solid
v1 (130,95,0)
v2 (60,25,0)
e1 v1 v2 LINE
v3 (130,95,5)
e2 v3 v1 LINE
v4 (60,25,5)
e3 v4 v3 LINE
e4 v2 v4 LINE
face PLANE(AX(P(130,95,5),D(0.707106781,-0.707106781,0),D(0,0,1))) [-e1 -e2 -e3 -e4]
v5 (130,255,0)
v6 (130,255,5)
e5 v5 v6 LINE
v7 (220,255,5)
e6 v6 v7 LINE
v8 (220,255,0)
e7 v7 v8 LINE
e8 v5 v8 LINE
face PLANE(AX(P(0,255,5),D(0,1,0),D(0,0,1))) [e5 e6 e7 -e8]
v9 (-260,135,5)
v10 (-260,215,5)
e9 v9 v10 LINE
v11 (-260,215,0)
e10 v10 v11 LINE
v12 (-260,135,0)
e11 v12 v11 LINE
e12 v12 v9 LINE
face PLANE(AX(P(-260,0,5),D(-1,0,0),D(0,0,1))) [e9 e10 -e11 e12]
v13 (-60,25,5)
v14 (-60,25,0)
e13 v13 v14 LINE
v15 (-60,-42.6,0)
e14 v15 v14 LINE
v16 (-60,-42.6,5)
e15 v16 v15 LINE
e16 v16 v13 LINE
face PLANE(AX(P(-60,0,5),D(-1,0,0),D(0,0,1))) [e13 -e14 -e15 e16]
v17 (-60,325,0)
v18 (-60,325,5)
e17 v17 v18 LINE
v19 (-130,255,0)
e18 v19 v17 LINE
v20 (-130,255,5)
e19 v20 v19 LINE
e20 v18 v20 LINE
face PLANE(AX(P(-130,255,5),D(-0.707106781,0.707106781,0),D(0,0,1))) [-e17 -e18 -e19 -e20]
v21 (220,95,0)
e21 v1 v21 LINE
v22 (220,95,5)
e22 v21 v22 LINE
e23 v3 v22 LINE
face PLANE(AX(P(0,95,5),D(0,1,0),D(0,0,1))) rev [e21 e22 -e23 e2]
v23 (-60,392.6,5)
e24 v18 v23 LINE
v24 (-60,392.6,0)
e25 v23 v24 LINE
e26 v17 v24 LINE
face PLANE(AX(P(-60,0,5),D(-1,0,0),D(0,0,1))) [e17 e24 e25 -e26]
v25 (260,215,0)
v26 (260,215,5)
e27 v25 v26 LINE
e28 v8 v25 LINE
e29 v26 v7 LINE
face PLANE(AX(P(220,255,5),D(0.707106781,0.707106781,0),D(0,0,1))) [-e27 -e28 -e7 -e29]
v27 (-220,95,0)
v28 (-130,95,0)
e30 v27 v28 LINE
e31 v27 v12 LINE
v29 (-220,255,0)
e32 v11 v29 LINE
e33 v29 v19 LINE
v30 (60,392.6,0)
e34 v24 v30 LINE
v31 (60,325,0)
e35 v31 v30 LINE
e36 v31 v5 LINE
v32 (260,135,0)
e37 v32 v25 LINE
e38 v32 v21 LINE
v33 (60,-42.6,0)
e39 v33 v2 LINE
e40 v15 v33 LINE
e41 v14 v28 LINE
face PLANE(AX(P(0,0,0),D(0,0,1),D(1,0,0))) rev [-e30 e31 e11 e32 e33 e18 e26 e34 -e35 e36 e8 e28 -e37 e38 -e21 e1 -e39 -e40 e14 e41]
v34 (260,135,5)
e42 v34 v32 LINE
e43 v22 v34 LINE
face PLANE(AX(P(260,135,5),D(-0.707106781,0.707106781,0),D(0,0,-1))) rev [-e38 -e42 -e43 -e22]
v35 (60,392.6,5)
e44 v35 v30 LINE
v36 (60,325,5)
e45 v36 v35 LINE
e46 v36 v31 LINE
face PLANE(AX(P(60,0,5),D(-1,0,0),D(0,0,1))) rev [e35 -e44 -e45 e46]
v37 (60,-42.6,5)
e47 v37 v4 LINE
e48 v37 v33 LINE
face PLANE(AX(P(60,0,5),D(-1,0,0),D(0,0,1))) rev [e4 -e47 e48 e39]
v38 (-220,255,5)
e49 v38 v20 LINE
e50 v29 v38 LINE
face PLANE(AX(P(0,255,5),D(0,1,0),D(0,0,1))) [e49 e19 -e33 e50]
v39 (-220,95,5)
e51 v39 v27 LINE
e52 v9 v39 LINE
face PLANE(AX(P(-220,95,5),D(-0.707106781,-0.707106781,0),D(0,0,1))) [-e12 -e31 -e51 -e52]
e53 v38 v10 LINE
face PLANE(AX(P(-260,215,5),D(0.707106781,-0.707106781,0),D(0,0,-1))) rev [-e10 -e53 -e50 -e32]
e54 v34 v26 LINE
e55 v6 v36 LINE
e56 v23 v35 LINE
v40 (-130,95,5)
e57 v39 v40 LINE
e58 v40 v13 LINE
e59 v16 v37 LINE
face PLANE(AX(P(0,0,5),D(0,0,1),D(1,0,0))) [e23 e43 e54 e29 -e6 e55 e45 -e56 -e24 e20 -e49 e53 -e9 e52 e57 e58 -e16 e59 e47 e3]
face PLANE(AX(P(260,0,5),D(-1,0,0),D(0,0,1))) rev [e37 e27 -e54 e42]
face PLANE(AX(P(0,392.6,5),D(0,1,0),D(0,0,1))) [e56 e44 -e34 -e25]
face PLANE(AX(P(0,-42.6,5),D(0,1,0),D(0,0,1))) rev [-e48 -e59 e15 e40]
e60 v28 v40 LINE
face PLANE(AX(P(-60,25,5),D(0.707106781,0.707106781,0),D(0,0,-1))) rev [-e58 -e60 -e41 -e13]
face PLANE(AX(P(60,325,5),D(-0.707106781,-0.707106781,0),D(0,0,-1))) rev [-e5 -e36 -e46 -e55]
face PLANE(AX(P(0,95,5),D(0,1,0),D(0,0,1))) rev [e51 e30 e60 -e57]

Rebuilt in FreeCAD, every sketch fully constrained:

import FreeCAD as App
import Part
import Sketcher
Q = App.Units.Quantity


def edges_at(feature, points):
    """Names of the edges that pass closest to the given points."""
    edges = feature.Shape.Edges
    near = lambda p: min(range(len(edges)), key=lambda i: edges[i].distToShape(Part.Vertex(*p))[0])
    return sorted({f"Edge{near(p) + 1}" for p in points})

doc = App.newDocument("Part")
body = doc.addObject("PartDesign::Body", "Body")

# Sketch on XY plane
sketch1 = body.newObject("Sketcher::SketchObject", "Sketch")
sketch1.AttachmentSupport = (doc.getObject("XY_Plane"), [""])
sketch1.MapMode = "FlatFace"
sketch1.addGeometry([
    Part.LineSegment(App.Vector(-60, 392.6, 0), App.Vector(-60, 255, 0)),  # 0
    Part.LineSegment(App.Vector(-60, 255, 0), App.Vector(-260, 255, 0)),  # 1
    Part.LineSegment(App.Vector(-260, 255, 0), App.Vector(-260, 95, 0)),  # 2
    Part.LineSegment(App.Vector(-260, 95, 0), App.Vector(-60, 95, 0)),  # 3
    Part.LineSegment(App.Vector(-60, 95, 0), App.Vector(-60, -42.6, 0)),  # 4
    Part.LineSegment(App.Vector(-60, -42.6, 0), App.Vector(60, -42.6, 0)),  # 5
    Part.LineSegment(App.Vector(60, -42.6, 0), App.Vector(60, 95, 0)),  # 6
    Part.LineSegment(App.Vector(60, 95, 0), App.Vector(260, 95, 0)),  # 7
    Part.LineSegment(App.Vector(260, 95, 0), App.Vector(260, 255, 0)),  # 8
    Part.LineSegment(App.Vector(260, 255, 0), App.Vector(60, 255, 0)),  # 9
    Part.LineSegment(App.Vector(60, 255, 0), App.Vector(60, 392.6, 0)),  # 10
    Part.LineSegment(App.Vector(60, 392.6, 0), App.Vector(-60, 392.6, 0)),  # 11
], False)
sketch1.addConstraint([
    Sketcher.Constraint("Coincident", 0, 2, 1, 1),
    Sketcher.Constraint("Coincident", 1, 2, 2, 1),
    Sketcher.Constraint("Coincident", 2, 2, 3, 1),
    Sketcher.Constraint("Coincident", 3, 2, 4, 1),
    Sketcher.Constraint("Coincident", 4, 2, 5, 1),
    Sketcher.Constraint("Coincident", 5, 2, 6, 1),
    Sketcher.Constraint("Coincident", 6, 2, 7, 1),
    Sketcher.Constraint("Coincident", 7, 2, 8, 1),
    Sketcher.Constraint("Coincident", 8, 2, 9, 1),
    Sketcher.Constraint("Coincident", 9, 2, 10, 1),
    Sketcher.Constraint("Coincident", 10, 2, 11, 1),
    Sketcher.Constraint("Coincident", 11, 2, 0, 1),
    Sketcher.Constraint("Vertical", 0),
    Sketcher.Constraint("Horizontal", 1),
    Sketcher.Constraint("Vertical", 2),
    Sketcher.Constraint("Horizontal", 3),
    Sketcher.Constraint("Vertical", 4),
    Sketcher.Constraint("Horizontal", 5),
    Sketcher.Constraint("Vertical", 6),
    Sketcher.Constraint("Horizontal", 7),
    Sketcher.Constraint("Vertical", 8),
    Sketcher.Constraint("Horizontal", 9),
    Sketcher.Constraint("Vertical", 10),
    Sketcher.Constraint("Horizontal", 11),
    Sketcher.Constraint("Symmetric", 3, 2, 6, 2, -2),
    Sketcher.Constraint("Symmetric", 1, 2, 8, 2, -2),
    Sketcher.Constraint("Vertical", 0, 2, 3, 2),
    Sketcher.Constraint("Vertical", 6, 2, 9, 2),
    Sketcher.Constraint("Equal", 0, 4),
    Sketcher.Constraint("DistanceX", 1, 2, 1, 1, Q("200 mm")),
    Sketcher.Constraint("DistanceX", 5, 1, 5, 2, Q("120 mm")),
    Sketcher.Constraint("DistanceY", 2, 2, 2, 1, Q("160 mm")),
    Sketcher.Constraint("DistanceY", 0, 2, 0, 1, Q("137.6 mm")),
    Sketcher.Constraint("DistanceY", -1, 1, 0, 2, Q("255 mm")),
])
pad1 = body.newObject("PartDesign::Pad", "Pad")
pad1.Profile = sketch1
pad1.Length = 5
doc.recompute()

chamfer = body.newObject("PartDesign::Chamfer", "Chamfer")
chamfer.Base = (pad1, edges_at(pad1, [
    (60, 255, 2.5),
    (60, 95, 2.5),
    (-60, 95, 2.5),
    (-60, 255, 2.5),
]))
chamfer.Size = 70
doc.recompute()

chamfer2 = body.newObject("PartDesign::Chamfer", "Chamfer001")
chamfer2.Base = (chamfer, edges_at(chamfer, [
    (260, 255, 2.5),
    (260, 95, 2.5),
    (-260, 95, 2.5),
    (-260, 255, 2.5),
]))
chamfer2.Size = 40

doc.recompute()
